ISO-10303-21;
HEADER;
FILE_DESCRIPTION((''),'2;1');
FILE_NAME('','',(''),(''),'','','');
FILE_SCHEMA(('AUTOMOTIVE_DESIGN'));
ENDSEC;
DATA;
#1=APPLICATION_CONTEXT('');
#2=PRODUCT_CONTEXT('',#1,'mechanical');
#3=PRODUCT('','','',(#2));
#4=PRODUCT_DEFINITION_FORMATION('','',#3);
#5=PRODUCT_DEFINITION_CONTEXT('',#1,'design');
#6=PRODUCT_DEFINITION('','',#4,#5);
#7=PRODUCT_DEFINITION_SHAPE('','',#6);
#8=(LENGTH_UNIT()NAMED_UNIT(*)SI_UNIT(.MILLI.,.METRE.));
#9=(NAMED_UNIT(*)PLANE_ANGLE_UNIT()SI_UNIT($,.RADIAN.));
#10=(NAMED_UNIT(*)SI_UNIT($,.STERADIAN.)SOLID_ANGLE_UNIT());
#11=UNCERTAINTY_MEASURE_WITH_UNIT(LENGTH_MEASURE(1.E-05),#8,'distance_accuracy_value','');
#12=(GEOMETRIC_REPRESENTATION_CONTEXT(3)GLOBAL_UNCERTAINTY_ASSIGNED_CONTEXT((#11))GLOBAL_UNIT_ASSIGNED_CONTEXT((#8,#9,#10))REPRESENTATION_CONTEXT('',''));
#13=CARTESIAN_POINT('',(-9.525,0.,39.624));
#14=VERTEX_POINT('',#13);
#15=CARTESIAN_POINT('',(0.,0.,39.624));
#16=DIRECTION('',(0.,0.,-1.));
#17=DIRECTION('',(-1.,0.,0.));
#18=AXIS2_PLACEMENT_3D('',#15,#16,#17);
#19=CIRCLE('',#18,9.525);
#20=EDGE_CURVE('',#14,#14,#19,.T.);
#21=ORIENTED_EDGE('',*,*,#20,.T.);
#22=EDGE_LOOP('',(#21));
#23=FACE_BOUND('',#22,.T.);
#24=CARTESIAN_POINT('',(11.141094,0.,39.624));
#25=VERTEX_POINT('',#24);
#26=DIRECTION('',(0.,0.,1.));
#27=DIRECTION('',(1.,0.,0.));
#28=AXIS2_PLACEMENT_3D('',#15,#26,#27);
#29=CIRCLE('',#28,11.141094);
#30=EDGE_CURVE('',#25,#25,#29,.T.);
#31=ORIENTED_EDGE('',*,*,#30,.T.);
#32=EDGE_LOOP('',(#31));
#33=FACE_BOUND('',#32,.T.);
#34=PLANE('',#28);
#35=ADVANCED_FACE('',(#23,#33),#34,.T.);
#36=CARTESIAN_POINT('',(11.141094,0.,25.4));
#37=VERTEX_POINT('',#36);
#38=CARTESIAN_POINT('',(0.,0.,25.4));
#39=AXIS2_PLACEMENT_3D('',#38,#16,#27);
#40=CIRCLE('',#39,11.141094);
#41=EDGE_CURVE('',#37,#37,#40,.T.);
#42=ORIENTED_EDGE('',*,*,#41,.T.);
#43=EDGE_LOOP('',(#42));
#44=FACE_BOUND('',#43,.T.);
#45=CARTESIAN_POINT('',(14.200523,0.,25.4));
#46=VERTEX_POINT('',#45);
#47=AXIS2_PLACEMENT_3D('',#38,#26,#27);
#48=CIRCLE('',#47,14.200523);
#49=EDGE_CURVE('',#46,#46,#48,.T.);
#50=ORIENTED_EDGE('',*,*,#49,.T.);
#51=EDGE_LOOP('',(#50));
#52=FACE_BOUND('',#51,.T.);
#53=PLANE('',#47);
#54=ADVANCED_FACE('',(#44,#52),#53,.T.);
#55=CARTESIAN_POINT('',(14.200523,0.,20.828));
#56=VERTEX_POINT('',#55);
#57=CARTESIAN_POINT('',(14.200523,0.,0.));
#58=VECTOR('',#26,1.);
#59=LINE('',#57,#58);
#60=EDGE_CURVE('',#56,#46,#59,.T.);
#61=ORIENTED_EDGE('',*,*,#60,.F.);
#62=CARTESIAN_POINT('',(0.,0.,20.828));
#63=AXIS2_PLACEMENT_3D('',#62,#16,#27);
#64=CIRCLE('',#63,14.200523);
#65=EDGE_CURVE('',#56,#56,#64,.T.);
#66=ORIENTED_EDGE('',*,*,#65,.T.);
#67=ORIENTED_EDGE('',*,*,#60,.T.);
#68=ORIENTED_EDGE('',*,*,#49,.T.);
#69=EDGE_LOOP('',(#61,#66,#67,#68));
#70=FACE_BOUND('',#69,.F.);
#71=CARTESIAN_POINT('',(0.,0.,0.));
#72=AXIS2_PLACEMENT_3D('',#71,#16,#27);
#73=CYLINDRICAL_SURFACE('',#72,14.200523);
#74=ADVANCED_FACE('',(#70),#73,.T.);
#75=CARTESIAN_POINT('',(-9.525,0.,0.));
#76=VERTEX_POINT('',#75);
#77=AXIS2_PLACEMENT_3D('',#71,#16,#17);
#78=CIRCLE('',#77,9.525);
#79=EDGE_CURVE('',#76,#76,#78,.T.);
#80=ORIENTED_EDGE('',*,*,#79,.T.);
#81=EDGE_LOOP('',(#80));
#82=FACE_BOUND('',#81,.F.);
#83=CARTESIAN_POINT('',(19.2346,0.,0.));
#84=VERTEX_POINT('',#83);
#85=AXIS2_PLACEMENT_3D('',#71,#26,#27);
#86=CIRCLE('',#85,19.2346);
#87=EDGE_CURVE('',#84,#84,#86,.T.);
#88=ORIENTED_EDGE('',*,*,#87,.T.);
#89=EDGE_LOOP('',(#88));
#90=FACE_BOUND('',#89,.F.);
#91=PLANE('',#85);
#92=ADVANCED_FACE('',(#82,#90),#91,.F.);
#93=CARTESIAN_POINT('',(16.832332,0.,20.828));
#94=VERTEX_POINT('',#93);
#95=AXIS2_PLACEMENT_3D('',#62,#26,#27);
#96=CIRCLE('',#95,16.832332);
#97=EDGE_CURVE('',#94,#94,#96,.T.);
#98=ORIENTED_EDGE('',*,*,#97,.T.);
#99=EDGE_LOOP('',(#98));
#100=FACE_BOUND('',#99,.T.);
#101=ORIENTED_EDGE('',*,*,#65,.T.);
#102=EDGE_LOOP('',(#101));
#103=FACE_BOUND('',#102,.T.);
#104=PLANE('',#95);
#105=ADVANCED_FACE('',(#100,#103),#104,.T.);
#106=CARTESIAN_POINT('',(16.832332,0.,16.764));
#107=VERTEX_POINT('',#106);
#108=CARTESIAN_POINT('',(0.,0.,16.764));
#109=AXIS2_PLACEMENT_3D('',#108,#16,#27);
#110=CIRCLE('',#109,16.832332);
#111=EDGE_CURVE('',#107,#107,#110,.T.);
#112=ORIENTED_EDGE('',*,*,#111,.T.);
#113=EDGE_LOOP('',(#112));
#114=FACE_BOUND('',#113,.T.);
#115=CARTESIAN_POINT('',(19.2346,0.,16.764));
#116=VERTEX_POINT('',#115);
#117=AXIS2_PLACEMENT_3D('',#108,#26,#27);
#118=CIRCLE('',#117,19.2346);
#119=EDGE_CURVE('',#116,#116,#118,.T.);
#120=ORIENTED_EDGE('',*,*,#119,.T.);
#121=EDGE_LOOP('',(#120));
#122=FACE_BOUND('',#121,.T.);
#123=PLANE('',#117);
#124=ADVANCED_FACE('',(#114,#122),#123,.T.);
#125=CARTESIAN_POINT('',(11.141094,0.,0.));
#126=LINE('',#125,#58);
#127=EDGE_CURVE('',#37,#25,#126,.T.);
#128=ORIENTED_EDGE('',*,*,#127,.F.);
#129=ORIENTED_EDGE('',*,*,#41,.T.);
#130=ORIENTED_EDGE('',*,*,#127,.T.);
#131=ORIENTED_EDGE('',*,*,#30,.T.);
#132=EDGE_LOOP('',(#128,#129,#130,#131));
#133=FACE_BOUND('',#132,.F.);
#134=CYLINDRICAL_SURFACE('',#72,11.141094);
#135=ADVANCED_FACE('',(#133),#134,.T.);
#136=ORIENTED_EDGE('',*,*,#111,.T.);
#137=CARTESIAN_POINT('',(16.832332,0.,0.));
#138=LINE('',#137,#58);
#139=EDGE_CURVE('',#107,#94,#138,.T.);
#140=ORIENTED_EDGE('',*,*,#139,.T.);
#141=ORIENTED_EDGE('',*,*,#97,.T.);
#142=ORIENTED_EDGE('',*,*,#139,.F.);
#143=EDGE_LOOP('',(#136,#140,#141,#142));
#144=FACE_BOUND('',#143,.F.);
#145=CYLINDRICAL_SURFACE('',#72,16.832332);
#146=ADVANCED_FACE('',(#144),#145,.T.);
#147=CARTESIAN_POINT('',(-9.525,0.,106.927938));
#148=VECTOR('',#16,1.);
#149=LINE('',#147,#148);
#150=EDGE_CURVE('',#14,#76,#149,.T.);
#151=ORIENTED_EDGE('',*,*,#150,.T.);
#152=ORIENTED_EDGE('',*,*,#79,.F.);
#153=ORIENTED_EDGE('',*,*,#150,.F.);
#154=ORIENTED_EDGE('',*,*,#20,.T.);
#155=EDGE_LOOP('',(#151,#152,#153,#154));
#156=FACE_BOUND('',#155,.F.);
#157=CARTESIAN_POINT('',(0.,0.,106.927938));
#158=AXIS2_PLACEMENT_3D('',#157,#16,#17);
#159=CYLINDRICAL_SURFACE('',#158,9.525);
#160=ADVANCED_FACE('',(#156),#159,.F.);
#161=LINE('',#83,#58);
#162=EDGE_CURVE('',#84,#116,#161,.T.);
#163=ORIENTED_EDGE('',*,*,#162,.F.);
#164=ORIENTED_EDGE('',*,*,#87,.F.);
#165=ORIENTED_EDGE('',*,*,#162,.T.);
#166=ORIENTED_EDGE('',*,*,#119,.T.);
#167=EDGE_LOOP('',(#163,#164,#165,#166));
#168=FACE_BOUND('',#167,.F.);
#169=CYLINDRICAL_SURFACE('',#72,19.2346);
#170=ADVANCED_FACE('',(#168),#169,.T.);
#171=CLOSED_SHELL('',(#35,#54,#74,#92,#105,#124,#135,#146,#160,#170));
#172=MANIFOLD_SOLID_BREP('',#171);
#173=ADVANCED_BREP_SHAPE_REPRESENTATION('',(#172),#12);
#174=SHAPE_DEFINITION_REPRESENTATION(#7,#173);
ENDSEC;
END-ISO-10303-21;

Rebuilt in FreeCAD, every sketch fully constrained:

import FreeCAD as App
import Part
import Sketcher
from FreeCAD import Vector
Q = App.Units.Quantity

doc = App.newDocument("Part")
body = doc.addObject("PartDesign::Body", "Body")

# Sketch on XY plane
sketch1 = doc.addObject("Sketcher::SketchObject", "Sketch")
body.addObject(sketch1)
sketch1.AttachmentSupport = (doc.XY_Plane, [""])
sketch1.MapMode = "FlatFace"
sketch1.addGeometry(Part.Circle(Vector(0, 0, 0), Vector(0, 0, 1), 19.2346), False)
sketch1.addConstraint(Sketcher.Constraint("Coincident", 0, 3, -1, 1))
sketch1.addConstraint(Sketcher.Constraint("Diameter", 0, Q("38.4692 mm")))
pad1 = doc.addObject("PartDesign::Pad", "Pad")
body.addObject(pad1)
pad1.Profile = sketch1
pad1.Length = Q("0.66 in")

# Sketch on XY plane
sketch2 = doc.addObject("Sketcher::SketchObject", "Sketch001")
body.addObject(sketch2)
sketch2.AttachmentSupport = (doc.XY_Plane, [""])
sketch2.MapMode = "FlatFace"
sketch2.addGeometry(Part.Circle(Vector(0, 0, 0), Vector(0, 0, 1), 16.832332), False)
sketch2.addConstraint(Sketcher.Constraint("Coincident", 0, 3, -1, 1))
sketch2.addConstraint(Sketcher.Constraint("Diameter", 0, Q("33.664664 mm")))
pad2 = doc.addObject("PartDesign::Pad", "Pad001")
body.addObject(pad2)
pad2.Profile = sketch2
pad2.Length = Q("0.82 in")

# Sketch on XY plane
sketch3 = doc.addObject("Sketcher::SketchObject", "Sketch002")
body.addObject(sketch3)
sketch3.AttachmentSupport = (doc.XY_Plane, [""])
sketch3.MapMode = "FlatFace"
sketch3.addGeometry(Part.Circle(Vector(0, 0, 0), Vector(0, 0, 1), 14.200523), False)
sketch3.addConstraint(Sketcher.Constraint("Coincident", 0, 3, -1, 1))
sketch3.addConstraint(Sketcher.Constraint("Diameter", 0, Q("28.401046 mm")))
pad3 = doc.addObject("PartDesign::Pad", "Pad002")
body.addObject(pad3)
pad3.Profile = sketch3
pad3.Length = Q("1 in")

# Sketch on XY plane
sketch4 = doc.addObject("Sketcher::SketchObject", "Sketch003")
body.addObject(sketch4)
sketch4.AttachmentSupport = (doc.XY_Plane, [""])
sketch4.MapMode = "FlatFace"
sketch4.addGeometry(Part.Circle(Vector(0, 0, 0), Vector(0, 0, 1), 11.141094), False)
sketch4.addConstraint(Sketcher.Constraint("Coincident", 0, 3, -1, 1))
sketch4.addConstraint(Sketcher.Constraint("Diameter", 0, Q("22.282188 mm")))
pad4 = doc.addObject("PartDesign::Pad", "Pad003")
body.addObject(pad4)
pad4.Profile = sketch4
pad4.Length = Q("1.56 in")

# Sketch on XY plane
sketch5 = doc.addObject("Sketcher::SketchObject", "Sketch004")
body.addObject(sketch5)
sketch5.AttachmentSupport = (doc.XY_Plane, [""])
sketch5.MapMode = "FlatFace"
sketch5.AttachmentOffset = App.Placement(Vector(0, 0, 1.56 * 25.4), App.Rotation())
sketch5.addGeometry(Part.Circle(Vector(0, 0, 0), Vector(0, 0, 1), 9.525), False)
sketch5.addConstraint(Sketcher.Constraint("Coincident", 0, 3, -1, 1))
sketch5.addConstraint(Sketcher.Constraint("Diameter", 0, Q("0.75 in")))
doc.recompute()
hole = doc.addObject("PartDesign::Hole", "Hole")
body.addObject(hole)
hole.Profile = sketch5
hole.ThreadType = "None"
hole.Diameter = Q("0.75 in")
hole.DepthType = "ThroughAll"

doc.recompute()
